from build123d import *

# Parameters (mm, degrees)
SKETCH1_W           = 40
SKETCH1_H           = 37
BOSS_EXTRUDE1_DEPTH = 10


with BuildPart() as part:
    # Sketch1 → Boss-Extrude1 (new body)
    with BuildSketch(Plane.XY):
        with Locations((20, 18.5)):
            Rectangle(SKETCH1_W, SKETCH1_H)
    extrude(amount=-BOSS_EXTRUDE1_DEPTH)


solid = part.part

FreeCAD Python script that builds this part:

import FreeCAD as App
import Part
import Sketcher

V = App.Vector
Q = App.Units.Quantity

doc = App.newDocument("Part")
body = doc.addObject("PartDesign::Body", "Body")

# Sketch on XY plane
sketch1 = body.newObject("Sketcher::SketchObject", "Sketch")
sketch1.AttachmentSupport = (doc.getObject("XY_Plane"), [""])
sketch1.MapMode = "FlatFace"
sketch1.addGeometry(Part.LineSegment(V(0, 37, 0), V(0, 0, 0)), False)
sketch1.addGeometry(Part.LineSegment(V(0, 0, 0), V(40, 0, 0)), False)
sketch1.addGeometry(Part.LineSegment(V(40, 0, 0), V(40, 37, 0)), False)
sketch1.addGeometry(Part.LineSegment(V(40, 37, 0), V(0, 37, 0)), False)
sketch1.addConstraint(Sketcher.Constraint("Coincident", 0, 2, 1, 1))
sketch1.addConstraint(Sketcher.Constraint("Coincident", 1, 2, 2, 1))
sketch1.addConstraint(Sketcher.Constraint("Coincident", 2, 2, 3, 1))
sketch1.addConstraint(Sketcher.Constraint("Coincident", 3, 2, 0, 1))
sketch1.addConstraint(Sketcher.Constraint("Vertical", 0))
sketch1.addConstraint(Sketcher.Constraint("Horizontal", 1))
sketch1.addConstraint(Sketcher.Constraint("Vertical", 2))
sketch1.addConstraint(Sketcher.Constraint("Horizontal", 3))
sketch1.addConstraint(Sketcher.Constraint("Coincident", 0, 2, -1, 1))
sketch1.addConstraint(Sketcher.Constraint("DistanceX", 1, 1, 1, 2, Q("40 mm")))
sketch1.addConstraint(Sketcher.Constraint("DistanceY", 0, 2, 0, 1, Q("37 mm")))
pad1 = body.newObject("PartDesign::Pad", "Pad")
pad1.Profile = sketch1
pad1.Length = 10
pad1.Reversed = True

doc.recompute()
